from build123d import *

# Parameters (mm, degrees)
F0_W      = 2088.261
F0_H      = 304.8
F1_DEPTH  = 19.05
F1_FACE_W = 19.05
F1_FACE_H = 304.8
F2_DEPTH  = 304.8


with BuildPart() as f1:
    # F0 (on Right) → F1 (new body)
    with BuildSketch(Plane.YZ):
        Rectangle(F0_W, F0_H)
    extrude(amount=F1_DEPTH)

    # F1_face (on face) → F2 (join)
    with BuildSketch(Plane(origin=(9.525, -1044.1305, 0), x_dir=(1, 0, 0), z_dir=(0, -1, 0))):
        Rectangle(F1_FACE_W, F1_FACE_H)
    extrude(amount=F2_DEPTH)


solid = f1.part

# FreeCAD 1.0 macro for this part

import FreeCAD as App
import Part
import Sketcher
from FreeCAD import Vector
Q = App.Units.Quantity


def add_polygon(sketch, points):
    """Adds a closed chain of lines whose ends are joined by coincident constraints."""
    first, n = sketch.GeometryCount, len(points)
    for a, b in zip(points, points[1:] + points[:1]):
        sketch.addGeometry(Part.LineSegment(App.Vector(*a, 0), App.Vector(*b, 0)), False)
    for i in range(n):
        sketch.addConstraint(Sketcher.Constraint("Coincident", first + i, 2, first + (i + 1) % n, 1))

doc = App.newDocument("Part")
params = doc.addObject("Spreadsheet::Sheet", "Params")
for row, (alias, value) in enumerate([
    ("sketch1_height", "12 in"),
    ("sketch1_width", "82.215 in"),
    ("pad1_length", "0.75 in"),
    ("sketch2_height", "12 in"),
    ("sketch2_width", "0.75 in"),
    ("pad2_length", "12 in"),
], start=1):
    params.set(f"A{row}", alias)
    params.set(f"B{row}", "=" + value)
    params.setAlias(f"B{row}", alias)

body = doc.addObject("PartDesign::Body", "Body")

sketch1 = body.newObject("Sketcher::SketchObject", "Sketch")
sketch1.AttachmentSupport = (doc.getObject("YZ_Plane"), [""])
sketch1.MapMode = "FlatFace"
add_polygon(sketch1, [(-1044, 152), (-1044, -152), (1044, -152), (1044, 152)])
sketch1.addConstraint(Sketcher.Constraint("Vertical", 0))
sketch1.addConstraint(Sketcher.Constraint("Horizontal", 1))
sketch1.addConstraint(Sketcher.Constraint("Vertical", 2))
sketch1.addConstraint(Sketcher.Constraint("Horizontal", 3))
sketch1.addConstraint(Sketcher.Constraint("Symmetric", 0, 2, 2, 2, -1, 1))
sketch1.addConstraint(Sketcher.Constraint("DistanceY", 0, 2, 0, 1, Q("12 in")))
sketch1.addConstraint(Sketcher.Constraint("DistanceX", 1, 1, 1, 2, Q("82.215 in")))
sketch1.setExpression("Constraints[9]", "Params.sketch1_height")
sketch1.setExpression("Constraints[10]", "Params.sketch1_width")
pad1 = body.newObject("PartDesign::Pad", "Pad")
pad1.Profile = sketch1
pad1.setExpression("Length", "Params.pad1_length")

sketch2 = body.newObject("Sketcher::SketchObject", "Sketch001")
sketch2.AttachmentSupport = (doc.getObject("XZ_Plane"), [""])
sketch2.MapMode = "FlatFace"
sketch2.AttachmentOffset = App.Placement(Vector(0, 0, 41.1075 * 25.4), App.Rotation())
add_polygon(sketch2, [(0, 152), (0, -152), (19, -152), (19, 152)])
sketch2.addConstraint(Sketcher.Constraint("Vertical", 0))
sketch2.addConstraint(Sketcher.Constraint("Horizontal", 1))
sketch2.addConstraint(Sketcher.Constraint("Vertical", 2))
sketch2.addConstraint(Sketcher.Constraint("Horizontal", 3))
sketch2.addConstraint(Sketcher.Constraint("Symmetric", 0, 2, 3, 2, -1, 1))
sketch2.addConstraint(Sketcher.Constraint("DistanceY", 0, 2, 0, 1, Q("12 in")))
sketch2.addConstraint(Sketcher.Constraint("DistanceX", 1, 1, 1, 2, Q("0.75 in")))
sketch2.setExpression("Constraints[9]", "Params.sketch2_height")
sketch2.setExpression("Constraints[10]", "Params.sketch2_width")
pad2 = body.newObject("PartDesign::Pad", "Pad001")
pad2.Profile = sketch2
pad2.setExpression("Length", "Params.pad2_length")

doc.recompute()
